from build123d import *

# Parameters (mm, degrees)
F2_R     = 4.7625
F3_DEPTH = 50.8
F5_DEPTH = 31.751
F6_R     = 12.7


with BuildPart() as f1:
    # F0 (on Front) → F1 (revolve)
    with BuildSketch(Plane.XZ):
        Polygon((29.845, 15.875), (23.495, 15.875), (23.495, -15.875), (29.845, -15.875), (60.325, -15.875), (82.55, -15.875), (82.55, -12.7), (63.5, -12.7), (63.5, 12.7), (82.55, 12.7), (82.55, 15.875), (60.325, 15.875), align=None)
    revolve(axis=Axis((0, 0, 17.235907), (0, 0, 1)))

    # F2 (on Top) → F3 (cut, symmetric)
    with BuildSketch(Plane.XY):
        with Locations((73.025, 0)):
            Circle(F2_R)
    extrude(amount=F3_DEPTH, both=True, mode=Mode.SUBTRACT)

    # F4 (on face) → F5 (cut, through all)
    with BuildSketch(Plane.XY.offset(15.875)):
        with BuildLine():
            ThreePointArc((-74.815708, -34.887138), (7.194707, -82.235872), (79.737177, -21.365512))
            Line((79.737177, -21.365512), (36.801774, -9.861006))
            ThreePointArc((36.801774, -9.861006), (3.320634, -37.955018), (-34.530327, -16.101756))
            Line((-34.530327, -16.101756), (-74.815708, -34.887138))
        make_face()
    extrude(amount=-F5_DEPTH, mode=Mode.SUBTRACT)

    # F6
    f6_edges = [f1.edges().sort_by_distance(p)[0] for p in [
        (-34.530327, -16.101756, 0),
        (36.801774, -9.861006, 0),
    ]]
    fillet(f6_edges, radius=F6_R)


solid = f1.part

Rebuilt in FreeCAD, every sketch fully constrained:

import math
import FreeCAD as App
import Part
import Sketcher
from FreeCAD import Vector
Q = App.Units.Quantity


def edges_at(feature, points):
    """Names of the edges that pass closest to the given points."""
    edges = feature.Shape.Edges
    near = lambda p: min(range(len(edges)), key=lambda i: edges[i].distToShape(Part.Vertex(*p))[0])
    return sorted({f"Edge{near(p) + 1}" for p in points})

doc = App.newDocument("Part")
body = doc.addObject("PartDesign::Body", "Body")

sketch1 = body.newObject("Sketcher::SketchObject", "Sketch")
sketch1.AttachmentSupport = (doc.getObject("XZ_Plane"), [""])
sketch1.MapMode = "FlatFace"
sketch1.addGeometry([
    Part.LineSegment(Vector(23.5, 15.9, 0), Vector(23.5, -15.9, 0)),
    Part.LineSegment(Vector(23.5, -15.9, 0), Vector(82.5, -15.9, 0)),
    Part.LineSegment(Vector(82.5, -15.9, 0), Vector(82.5, -12.7, 0)),
    Part.LineSegment(Vector(82.5, -12.7, 0), Vector(63.5, -12.7, 0)),
    Part.LineSegment(Vector(63.5, -12.7, 0), Vector(63.5, 12.7, 0)),
    Part.LineSegment(Vector(63.5, 12.7, 0), Vector(82.5, 12.7, 0)),
    Part.LineSegment(Vector(82.5, 12.7, 0), Vector(82.5, 15.9, 0)),
    Part.LineSegment(Vector(82.5, 15.9, 0), Vector(23.5, 15.9, 0)),
], False)
sketch1.addConstraint([
    Sketcher.Constraint("Coincident", 0, 2, 1, 1),
    Sketcher.Constraint("Coincident", 1, 2, 2, 1),
    Sketcher.Constraint("Coincident", 2, 2, 3, 1),
    Sketcher.Constraint("Coincident", 3, 2, 4, 1),
    Sketcher.Constraint("Coincident", 4, 2, 5, 1),
    Sketcher.Constraint("Coincident", 5, 2, 6, 1),
    Sketcher.Constraint("Coincident", 6, 2, 7, 1),
    Sketcher.Constraint("Coincident", 7, 2, 0, 1),
    Sketcher.Constraint("Vertical", 0),
    Sketcher.Constraint("Horizontal", 1),
    Sketcher.Constraint("Vertical", 2),
    Sketcher.Constraint("Horizontal", 3),
    Sketcher.Constraint("Vertical", 4),
    Sketcher.Constraint("Horizontal", 5),
    Sketcher.Constraint("Vertical", 6),
    Sketcher.Constraint("Horizontal", 7),
    Sketcher.Constraint("Symmetric", 2, 2, 5, 2, -1),
    Sketcher.Constraint("Equal", 2, 6),
    Sketcher.Constraint("DistanceY", 4, 1, 4, 2, Q("1 in")),
    Sketcher.Constraint("DistanceX", 3, 2, 3, 1, Q("0.75 in")),
    Sketcher.Constraint("DistanceY", 0, 2, 0, 1, Q("1.25 in")),
    Sketcher.Constraint("DistanceX", -1, 1, 3, 2, Q("2.5 in")),
    Sketcher.Constraint("DistanceX", 1, 1, 1, 2, Q("2.325 in")),
])
revolution = body.newObject("PartDesign::Revolution", "Revolution")
revolution.Profile = sketch1
revolution.ReferenceAxis = (sketch1, ["V_Axis"])
revolution.Angle = 360

sketch2 = body.newObject("Sketcher::SketchObject", "Sketch001")
sketch2.AttachmentSupport = (doc.getObject("XY_Plane"), [""])
sketch2.MapMode = "FlatFace"
sketch2.addGeometry(Part.Circle(Vector(73, 0, 0), Vector(0, 0, 1), 4.8), False)
sketch2.addConstraint([
    Sketcher.Constraint("PointOnObject", 0, 3, -1),
    Sketcher.Constraint("Diameter", 0, Q("0.375 in")),
    Sketcher.Constraint("DistanceX", -1, 1, 0, 3, Q("2.875 in")),
])
pocket1 = body.newObject("PartDesign::Pocket", "Pocket")
pocket1.Profile = sketch2
pocket1.Length = Q("4 in")
pocket1.Midplane = True

sketch3 = body.newObject("Sketcher::SketchObject", "Sketch002")
sketch3.AttachmentSupport = (doc.getObject("XY_Plane"), [""])
sketch3.MapMode = "FlatFace"
sketch3.AttachmentOffset = App.Placement(Vector(0, 0, 0.625 * 25.4), App.Rotation())
sketch3.addGeometry([
    Part.ArcOfCircle(Part.Circle(Vector(0, 0, 0), Vector(0, 0, 1), 83), math.radians(-155), math.radians(-15)),
    Part.LineSegment(Vector(80, -21, 0), Vector(37, -10, 0)),
    Part.ArcOfCircle(Part.Circle(Vector(0, 0, 0), Vector(0, 0, 1), 38), math.radians(-155), math.radians(-15)),
    Part.LineSegment(Vector(-35, -16, 0), Vector(-75, -35, 0)),
], False)
sketch3.addConstraint([
    Sketcher.Constraint("Coincident", 0, 2, 1, 1),
    Sketcher.Constraint("Coincident", 1, 2, 2, 2),
    Sketcher.Constraint("Coincident", 2, 1, 3, 1),
    Sketcher.Constraint("Coincident", 3, 2, 0, 1),
    Sketcher.Constraint("Coincident", 0, 3, -1, 1),
    Sketcher.Constraint("Coincident", 2, 3, -1, 1),
    Sketcher.Constraint("Radius", 2, Q("1.5 in")),
    Sketcher.Constraint("Radius", 0, Q("3.25 in")),
    Sketcher.Constraint("Angle", 1, Q("165.000001 deg")),
    Sketcher.Constraint("Angle", 3, Q("-155 deg")),
    Sketcher.Constraint("DistanceX", 2, 1, 1, 2, 71.332101),
    Sketcher.Constraint("DistanceY", 0, 2, -1, 1, 21.365512),
])
pocket2 = body.newObject("PartDesign::Pocket", "Pocket001")
pocket2.Profile = sketch3
pocket2.Type = "ThroughAll"
doc.recompute()

fillet = body.newObject("PartDesign::Fillet", "Fillet")
fillet.Base = (pocket2, edges_at(pocket2, [(-34.53, -16.102, 0), (36.802, -9.861, 0)]))
fillet.Radius = Q("0.5 in")

doc.recompute()
